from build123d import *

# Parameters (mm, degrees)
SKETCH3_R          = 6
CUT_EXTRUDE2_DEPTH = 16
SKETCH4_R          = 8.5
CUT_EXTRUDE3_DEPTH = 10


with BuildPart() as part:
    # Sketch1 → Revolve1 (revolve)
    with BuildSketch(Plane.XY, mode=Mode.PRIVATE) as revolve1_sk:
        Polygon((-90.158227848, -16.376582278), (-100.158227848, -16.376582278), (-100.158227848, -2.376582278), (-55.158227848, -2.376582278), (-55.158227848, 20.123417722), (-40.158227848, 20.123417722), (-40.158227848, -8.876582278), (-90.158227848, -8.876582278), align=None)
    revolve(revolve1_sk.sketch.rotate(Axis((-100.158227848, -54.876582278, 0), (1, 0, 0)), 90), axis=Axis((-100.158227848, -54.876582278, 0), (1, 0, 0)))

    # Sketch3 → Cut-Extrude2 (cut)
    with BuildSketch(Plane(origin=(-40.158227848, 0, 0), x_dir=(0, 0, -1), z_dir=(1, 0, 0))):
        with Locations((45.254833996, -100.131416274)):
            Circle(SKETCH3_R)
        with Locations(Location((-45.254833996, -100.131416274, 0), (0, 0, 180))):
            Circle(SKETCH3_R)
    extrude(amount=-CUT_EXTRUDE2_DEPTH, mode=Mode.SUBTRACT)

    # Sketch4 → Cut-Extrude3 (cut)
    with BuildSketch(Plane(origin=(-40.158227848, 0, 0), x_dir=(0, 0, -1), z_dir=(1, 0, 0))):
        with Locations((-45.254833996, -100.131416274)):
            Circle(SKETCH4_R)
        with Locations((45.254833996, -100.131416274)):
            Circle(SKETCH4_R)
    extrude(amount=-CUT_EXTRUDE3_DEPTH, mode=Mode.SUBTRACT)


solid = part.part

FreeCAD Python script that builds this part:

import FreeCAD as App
import Part
import Sketcher


def add_polygon(sketch, points):
    """Adds a closed chain of lines whose ends are joined by coincident constraints."""
    first, n = sketch.GeometryCount, len(points)
    for a, b in zip(points, points[1:] + points[:1]):
        sketch.addGeometry(Part.LineSegment(App.Vector(*a, 0), App.Vector(*b, 0)), False)
    for i in range(n):
        sketch.addConstraint(Sketcher.Constraint("Coincident", first + i, 2, first + (i + 1) % n, 1))

doc = App.newDocument("Part")
body = doc.addObject("PartDesign::Body", "Body")

sketch1 = body.newObject("Sketcher::SketchObject", "Sketch")
sketch1.AttachmentSupport = (doc.getObject("XY_Plane"), [""])
sketch1.MapMode = "FlatFace"
add_polygon(sketch1, [(-100.158228, -16.376582), (-90.158228, -16.376582), (-90.158228, -8.876582), (-40.158228, -8.876582), (-40.158228, 20.123418), (-55.158228, 20.123418), (-55.158228, -2.376582), (-100.158228, -2.376582)])
sketch1.addGeometry(Part.LineSegment(App.Vector(-100.158228, -54.876582, 0), App.Vector(-40.158228, -54.876582, 0)), True)
sketch1.addConstraint(Sketcher.Constraint("Horizontal", 0))
sketch1.addConstraint(Sketcher.Constraint("Vertical", 1))
sketch1.addConstraint(Sketcher.Constraint("Horizontal", 2))
sketch1.addConstraint(Sketcher.Constraint("Vertical", 3))
sketch1.addConstraint(Sketcher.Constraint("Horizontal", 4))
sketch1.addConstraint(Sketcher.Constraint("Vertical", 5))
sketch1.addConstraint(Sketcher.Constraint("Horizontal", 6))
sketch1.addConstraint(Sketcher.Constraint("Vertical", 7))
sketch1.addConstraint(Sketcher.Constraint("Horizontal", 8))
sketch1.addConstraint(Sketcher.Constraint("Vertical", 7, 2, 8, 1))
sketch1.addConstraint(Sketcher.Constraint("Vertical", 3, 2, 8, 2))
sketch1.addConstraint(Sketcher.Constraint("DistanceX", 0, 1, 0, 2, 10.0))
sketch1.addConstraint(Sketcher.Constraint("DistanceX", 2, 1, 2, 2, 50.0))
sketch1.addConstraint(Sketcher.Constraint("DistanceX", 4, 2, 4, 1, 15.0))
sketch1.addConstraint(Sketcher.Constraint("DistanceY", 3, 1, 3, 2, 29.0))
sketch1.addConstraint(Sketcher.Constraint("DistanceY", 7, 2, 7, 1, 14.0))
sketch1.addConstraint(Sketcher.Constraint("DistanceY", 1, 1, 1, 2, 7.5))
sketch1.addConstraint(Sketcher.Constraint("DistanceY", 8, 1, 1, 2, 46.0))
sketch1.addConstraint(Sketcher.Constraint("DistanceX", 0, 2, -1, 1, 90.158228))
sketch1.addConstraint(Sketcher.Constraint("DistanceY", 0, 2, -1, 1, 16.376582))
revolution = body.newObject("PartDesign::Revolution", "Revolution")
revolution.Profile = sketch1
revolution.ReferenceAxis = (sketch1, ["Axis0"])
revolution.Angle = 360

sketch2 = body.newObject("Sketcher::SketchObject", "Sketch001")
sketch2.AttachmentSupport = (doc.getObject("YZ_Plane"), [""])
sketch2.MapMode = "FlatFace"
sketch2.AttachmentOffset = App.Placement(App.Vector(0, 0, -40.158228), App.Rotation())
sketch2.addGeometry(Part.Circle(App.Vector(-100.131416, -45.254834, 0), App.Vector(0, 0, 1), 6), False)
sketch2.addGeometry(Part.Circle(App.Vector(-100.131416, 45.254834, 0), App.Vector(0, 0, 1), 6), False)
sketch2.addConstraint(Sketcher.Constraint("Equal", 0, 1))
sketch2.addConstraint(Sketcher.Constraint("Symmetric", 0, 3, 1, 3, -1))
sketch2.addConstraint(Sketcher.Constraint("Diameter", 0, 12.0))
sketch2.addConstraint(Sketcher.Constraint("DistanceX", 0, 3, -1, 1, 100.131416))
sketch2.addConstraint(Sketcher.Constraint("DistanceY", 0, 3, -1, 1, 45.254834))
pocket1 = body.newObject("PartDesign::Pocket", "Pocket")
pocket1.Profile = sketch2
pocket1.Length = 16

sketch3 = body.newObject("Sketcher::SketchObject", "Sketch002")
sketch3.AttachmentSupport = (doc.getObject("YZ_Plane"), [""])
sketch3.MapMode = "FlatFace"
sketch3.AttachmentOffset = App.Placement(App.Vector(0, 0, -40.158228), App.Rotation())
sketch3.addGeometry(Part.Circle(App.Vector(-100.131416, 45.254834, 0), App.Vector(0, 0, 1), 8.5), False)
sketch3.addGeometry(Part.Circle(App.Vector(-100.131416, -45.254834, 0), App.Vector(0, 0, 1), 8.5), False)
sketch3.addConstraint(Sketcher.Constraint("Equal", 0, 1))
sketch3.addConstraint(Sketcher.Constraint("Symmetric", 0, 3, 1, 3, -1))
sketch3.addConstraint(Sketcher.Constraint("Diameter", 0, 17.0))
sketch3.addConstraint(Sketcher.Constraint("DistanceX", 0, 3, -1, 1, 100.131416))
sketch3.addConstraint(Sketcher.Constraint("DistanceY", -1, 1, 0, 3, 45.254834))
pocket2 = body.newObject("PartDesign::Pocket", "Pocket001")
pocket2.Profile = sketch3
pocket2.Length = 10

doc.recompute()
